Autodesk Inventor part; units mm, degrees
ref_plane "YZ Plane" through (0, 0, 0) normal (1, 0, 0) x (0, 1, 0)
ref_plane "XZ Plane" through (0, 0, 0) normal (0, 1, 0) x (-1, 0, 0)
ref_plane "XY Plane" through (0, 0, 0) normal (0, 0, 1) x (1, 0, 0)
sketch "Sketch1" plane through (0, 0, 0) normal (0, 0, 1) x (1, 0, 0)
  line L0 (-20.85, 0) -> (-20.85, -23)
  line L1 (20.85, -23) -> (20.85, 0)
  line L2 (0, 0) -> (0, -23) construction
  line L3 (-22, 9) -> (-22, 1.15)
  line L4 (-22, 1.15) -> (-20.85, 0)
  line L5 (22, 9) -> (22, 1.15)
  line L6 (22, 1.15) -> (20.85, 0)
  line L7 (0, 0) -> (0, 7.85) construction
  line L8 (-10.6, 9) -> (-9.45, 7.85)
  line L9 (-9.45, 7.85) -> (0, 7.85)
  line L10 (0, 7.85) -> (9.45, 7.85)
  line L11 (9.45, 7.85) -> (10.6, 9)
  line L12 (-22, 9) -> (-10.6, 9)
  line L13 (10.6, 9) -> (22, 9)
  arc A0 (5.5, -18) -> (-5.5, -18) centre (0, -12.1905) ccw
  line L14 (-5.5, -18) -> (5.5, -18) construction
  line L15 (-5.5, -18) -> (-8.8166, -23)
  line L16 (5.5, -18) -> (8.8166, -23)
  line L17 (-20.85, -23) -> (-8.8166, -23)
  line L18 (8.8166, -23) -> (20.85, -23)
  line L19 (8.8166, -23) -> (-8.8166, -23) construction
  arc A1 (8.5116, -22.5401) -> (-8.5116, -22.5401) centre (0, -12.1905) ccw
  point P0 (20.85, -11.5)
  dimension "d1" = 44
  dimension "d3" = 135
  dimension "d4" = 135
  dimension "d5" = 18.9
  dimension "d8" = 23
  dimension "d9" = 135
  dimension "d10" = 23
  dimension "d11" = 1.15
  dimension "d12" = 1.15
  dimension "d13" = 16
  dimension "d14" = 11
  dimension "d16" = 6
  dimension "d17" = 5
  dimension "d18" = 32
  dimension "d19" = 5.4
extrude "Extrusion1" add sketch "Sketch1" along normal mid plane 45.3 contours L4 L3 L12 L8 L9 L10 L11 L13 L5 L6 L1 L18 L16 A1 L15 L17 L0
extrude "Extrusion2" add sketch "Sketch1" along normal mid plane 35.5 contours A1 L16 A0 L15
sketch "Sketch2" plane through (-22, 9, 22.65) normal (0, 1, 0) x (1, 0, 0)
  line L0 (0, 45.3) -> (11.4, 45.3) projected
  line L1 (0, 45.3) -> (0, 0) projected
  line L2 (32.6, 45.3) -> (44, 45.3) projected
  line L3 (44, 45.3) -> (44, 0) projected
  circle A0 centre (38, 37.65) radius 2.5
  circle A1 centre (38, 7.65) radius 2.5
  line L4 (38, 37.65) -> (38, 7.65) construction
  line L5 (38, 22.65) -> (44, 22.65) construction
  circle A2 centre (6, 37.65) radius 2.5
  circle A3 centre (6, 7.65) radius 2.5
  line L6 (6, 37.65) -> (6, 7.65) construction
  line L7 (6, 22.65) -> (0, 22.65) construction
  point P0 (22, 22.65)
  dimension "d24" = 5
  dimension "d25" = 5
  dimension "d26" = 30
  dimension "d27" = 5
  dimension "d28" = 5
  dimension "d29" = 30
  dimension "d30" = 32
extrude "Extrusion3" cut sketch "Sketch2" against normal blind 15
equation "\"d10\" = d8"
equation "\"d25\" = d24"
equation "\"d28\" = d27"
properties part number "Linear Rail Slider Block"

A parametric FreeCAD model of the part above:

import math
import FreeCAD as App
import Part
import Sketcher
from FreeCAD import Vector
Q = App.Units.Quantity

doc = App.newDocument("Part")
body = doc.addObject("PartDesign::Body", "Body")

sketch1 = body.newObject("Sketcher::SketchObject", "Sketch")
sketch1.AttachmentSupport = (doc.getObject("XY_Plane"), [""])
sketch1.MapMode = "FlatFace"
sketch1.addGeometry([
    Part.LineSegment(Vector(-22, 1.1, 0), Vector(-20.9, 0, 0)),
    Part.LineSegment(Vector(-20.9, 0, 0), Vector(-20.9, -23, 0)),
    Part.LineSegment(Vector(-20.9, -23, 0), Vector(-8.8, -23, 0)),
    Part.LineSegment(Vector(-8.8, -23, 0), Vector(-8.5, -22.5, 0)),
    Part.ArcOfCircle(Part.Circle(Vector(0, -12.2, 0), Vector(0, 0, 1), 13.4), math.radians(-51), math.radians(231)),
    Part.LineSegment(Vector(8.5, -22.5, 0), Vector(8.8, -23, 0)),
    Part.LineSegment(Vector(8.8, -23, 0), Vector(20.9, -23, 0)),
    Part.LineSegment(Vector(20.9, -23, 0), Vector(20.9, 0, 0)),
    Part.LineSegment(Vector(20.9, 0, 0), Vector(22, 1.1, 0)),
    Part.LineSegment(Vector(22, 1.1, 0), Vector(22, 9, 0)),
    Part.LineSegment(Vector(22, 9, 0), Vector(10.6, 9, 0)),
    Part.LineSegment(Vector(10.6, 9, 0), Vector(9.4, 7.8, 0)),
    Part.LineSegment(Vector(9.4, 7.8, 0), Vector(-9.4, 7.8, 0)),
    Part.LineSegment(Vector(-9.4, 7.8, 0), Vector(-10.6, 9, 0)),
    Part.LineSegment(Vector(-10.6, 9, 0), Vector(-22, 9, 0)),
    Part.LineSegment(Vector(-22, 9, 0), Vector(-22, 1.1, 0)),
], False)
sketch1.addConstraint([
    Sketcher.Constraint("Coincident", 0, 2, 1, 1),
    Sketcher.Constraint("Coincident", 1, 2, 2, 1),
    Sketcher.Constraint("Coincident", 2, 2, 3, 1),
    Sketcher.Constraint("Coincident", 3, 2, 4, 2),
    Sketcher.Constraint("Coincident", 4, 1, 5, 1),
    Sketcher.Constraint("Coincident", 5, 2, 6, 1),
    Sketcher.Constraint("Coincident", 6, 2, 7, 1),
    Sketcher.Constraint("Coincident", 7, 2, 8, 1),
    Sketcher.Constraint("Coincident", 8, 2, 9, 1),
    Sketcher.Constraint("Coincident", 9, 2, 10, 1),
    Sketcher.Constraint("Coincident", 10, 2, 11, 1),
    Sketcher.Constraint("Coincident", 11, 2, 12, 1),
    Sketcher.Constraint("Coincident", 12, 2, 13, 1),
    Sketcher.Constraint("Coincident", 13, 2, 14, 1),
    Sketcher.Constraint("Coincident", 14, 2, 15, 1),
    Sketcher.Constraint("Coincident", 15, 2, 0, 1),
    Sketcher.Constraint("Vertical", 1),
    Sketcher.Constraint("Horizontal", 2),
    Sketcher.Constraint("Horizontal", 6),
    Sketcher.Constraint("Vertical", 7),
    Sketcher.Constraint("Vertical", 9),
    Sketcher.Constraint("Horizontal", 10),
    Sketcher.Constraint("Horizontal", 12),
    Sketcher.Constraint("Horizontal", 14),
    Sketcher.Constraint("Vertical", 15),
    Sketcher.Constraint("Symmetric", 0, 2, 7, 2, -1, 1),
    Sketcher.Constraint("Symmetric", 3, 2, 4, 1, -2),
    Sketcher.Constraint("Symmetric", 2, 2, 5, 2, -2),
    Sketcher.Constraint("Symmetric", 10, 2, 13, 2, -2),
    Sketcher.Constraint("Symmetric", 8, 2, 15, 2, -2),
    Sketcher.Constraint("PointOnObject", 0, 2, -1),
    Sketcher.Constraint("Perpendicular", 0, 8),
    Sketcher.Constraint("Parallel", 8, 11),
    Sketcher.Constraint("Perpendicular", 11, 13),
    Sketcher.Constraint("Equal", 8, 11),
    Sketcher.Constraint("DistanceY", 1, 2, 1, 1, Q("23 mm")),
    Sketcher.Constraint("DistanceX", 12, 2, 12, 1, Q("18.9 mm")),
    Sketcher.Constraint("DistanceY", 6, 2, 9, 2, Q("32 mm")),
    Sketcher.Constraint("Radius", 4, Q("13.4 mm")),
    Sketcher.Constraint("DistanceY", -1, 1, 8, 2, Q("1.15 mm")),
    Sketcher.Constraint("DistanceX", 10, 2, 10, 1, Q("11.4 mm")),
    Sketcher.Constraint("DistanceY", 4, 1, -1, 1, Q("22.54 mm")),
    Sketcher.Constraint("DistanceX", 2, 1, 2, 2, Q("12.0334 mm")),
    Sketcher.Constraint("DistanceX", 2, 2, 3, 2, Q("0.305 mm")),
])
pad1 = body.newObject("PartDesign::Pad", "Pad")
pad1.Profile = sketch1
pad1.Length = 45.3
pad1.Midplane = True

sketch2 = body.newObject("Sketcher::SketchObject", "Sketch001")
sketch2.AttachmentSupport = (doc.getObject("XY_Plane"), [""])
sketch2.MapMode = "FlatFace"
sketch2.addGeometry([
    Part.ArcOfCircle(Part.Circle(Vector(0, -12, 0), Vector(0, 0, 1), 13), math.radians(-51), math.radians(231)),
    Part.LineSegment(Vector(-9, -23, 0), Vector(-6, -18, 0)),
    Part.ArcOfCircle(Part.Circle(Vector(0, -12, 0), Vector(0, 0, 1), 8), math.radians(-47), math.radians(227)),
    Part.LineSegment(Vector(6, -18, 0), Vector(9, -23, 0)),
], False)
sketch2.addConstraint([
    Sketcher.Constraint("Coincident", 0, 2, 1, 1),
    Sketcher.Constraint("Coincident", 1, 2, 2, 2),
    Sketcher.Constraint("Coincident", 2, 1, 3, 1),
    Sketcher.Constraint("Coincident", 3, 2, 0, 1),
    Sketcher.Constraint("Coincident", 2, 3, 0, 3),
    Sketcher.Constraint("Symmetric", 1, 2, 2, 1, -2),
    Sketcher.Constraint("Horizontal", 0, 2, 3, 2),
    Sketcher.Constraint("Radius", 2, Q("8 mm")),
    Sketcher.Constraint("DistanceX", 1, 2, 2, 1, Q("11 mm")),
    Sketcher.Constraint("Radius", 0, Q("13.4 mm")),
    Sketcher.Constraint("DistanceY", 1, 2, -1, 1, Q("18 mm")),
    Sketcher.Constraint("DistanceY", 0, 2, -1, 1, Q("22.54 mm")),
])
pad2 = body.newObject("PartDesign::Pad", "Pad001")
pad2.Profile = sketch2
pad2.Length = 35.5
pad2.Midplane = True

sketch3 = body.newObject("Sketcher::SketchObject", "Sketch002")
sketch3.AttachmentSupport = (doc.getObject("XZ_Plane"), [""])
sketch3.MapMode = "FlatFace"
sketch3.AttachmentOffset = App.Placement(Vector(0, 0, -9), App.Rotation())
sketch3.addGeometry([
    Part.Circle(Vector(16, -15, 0), Vector(0, 0, 1), 2.5),
    Part.Circle(Vector(16, 15, 0), Vector(0, 0, 1), 2.5),
    Part.Circle(Vector(-16, -15, 0), Vector(0, 0, 1), 2.5),
    Part.Circle(Vector(-16, 15, 0), Vector(0, 0, 1), 2.5),
], False)
sketch3.addConstraint([
    Sketcher.Constraint("Equal", 0, 1),
    Sketcher.Constraint("Equal", 1, 2),
    Sketcher.Constraint("Equal", 2, 3),
    Sketcher.Constraint("Symmetric", 1, 3, 2, 3, -1, 1),
    Sketcher.Constraint("Symmetric", 0, 3, 3, 3, -1, 1),
    Sketcher.Constraint("Symmetric", 0, 3, 2, 3, -2),
    Sketcher.Constraint("Diameter", 0, Q("5 mm")),
    Sketcher.Constraint("DistanceY", 0, 3, 1, 3, Q("30 mm")),
    Sketcher.Constraint("DistanceX", 2, 3, 0, 3, Q("32 mm")),
])
pocket1 = body.newObject("PartDesign::Pocket", "Pocket")
pocket1.Profile = sketch3
pocket1.Length = 15
pocket1.Reversed = True

doc.recompute()
